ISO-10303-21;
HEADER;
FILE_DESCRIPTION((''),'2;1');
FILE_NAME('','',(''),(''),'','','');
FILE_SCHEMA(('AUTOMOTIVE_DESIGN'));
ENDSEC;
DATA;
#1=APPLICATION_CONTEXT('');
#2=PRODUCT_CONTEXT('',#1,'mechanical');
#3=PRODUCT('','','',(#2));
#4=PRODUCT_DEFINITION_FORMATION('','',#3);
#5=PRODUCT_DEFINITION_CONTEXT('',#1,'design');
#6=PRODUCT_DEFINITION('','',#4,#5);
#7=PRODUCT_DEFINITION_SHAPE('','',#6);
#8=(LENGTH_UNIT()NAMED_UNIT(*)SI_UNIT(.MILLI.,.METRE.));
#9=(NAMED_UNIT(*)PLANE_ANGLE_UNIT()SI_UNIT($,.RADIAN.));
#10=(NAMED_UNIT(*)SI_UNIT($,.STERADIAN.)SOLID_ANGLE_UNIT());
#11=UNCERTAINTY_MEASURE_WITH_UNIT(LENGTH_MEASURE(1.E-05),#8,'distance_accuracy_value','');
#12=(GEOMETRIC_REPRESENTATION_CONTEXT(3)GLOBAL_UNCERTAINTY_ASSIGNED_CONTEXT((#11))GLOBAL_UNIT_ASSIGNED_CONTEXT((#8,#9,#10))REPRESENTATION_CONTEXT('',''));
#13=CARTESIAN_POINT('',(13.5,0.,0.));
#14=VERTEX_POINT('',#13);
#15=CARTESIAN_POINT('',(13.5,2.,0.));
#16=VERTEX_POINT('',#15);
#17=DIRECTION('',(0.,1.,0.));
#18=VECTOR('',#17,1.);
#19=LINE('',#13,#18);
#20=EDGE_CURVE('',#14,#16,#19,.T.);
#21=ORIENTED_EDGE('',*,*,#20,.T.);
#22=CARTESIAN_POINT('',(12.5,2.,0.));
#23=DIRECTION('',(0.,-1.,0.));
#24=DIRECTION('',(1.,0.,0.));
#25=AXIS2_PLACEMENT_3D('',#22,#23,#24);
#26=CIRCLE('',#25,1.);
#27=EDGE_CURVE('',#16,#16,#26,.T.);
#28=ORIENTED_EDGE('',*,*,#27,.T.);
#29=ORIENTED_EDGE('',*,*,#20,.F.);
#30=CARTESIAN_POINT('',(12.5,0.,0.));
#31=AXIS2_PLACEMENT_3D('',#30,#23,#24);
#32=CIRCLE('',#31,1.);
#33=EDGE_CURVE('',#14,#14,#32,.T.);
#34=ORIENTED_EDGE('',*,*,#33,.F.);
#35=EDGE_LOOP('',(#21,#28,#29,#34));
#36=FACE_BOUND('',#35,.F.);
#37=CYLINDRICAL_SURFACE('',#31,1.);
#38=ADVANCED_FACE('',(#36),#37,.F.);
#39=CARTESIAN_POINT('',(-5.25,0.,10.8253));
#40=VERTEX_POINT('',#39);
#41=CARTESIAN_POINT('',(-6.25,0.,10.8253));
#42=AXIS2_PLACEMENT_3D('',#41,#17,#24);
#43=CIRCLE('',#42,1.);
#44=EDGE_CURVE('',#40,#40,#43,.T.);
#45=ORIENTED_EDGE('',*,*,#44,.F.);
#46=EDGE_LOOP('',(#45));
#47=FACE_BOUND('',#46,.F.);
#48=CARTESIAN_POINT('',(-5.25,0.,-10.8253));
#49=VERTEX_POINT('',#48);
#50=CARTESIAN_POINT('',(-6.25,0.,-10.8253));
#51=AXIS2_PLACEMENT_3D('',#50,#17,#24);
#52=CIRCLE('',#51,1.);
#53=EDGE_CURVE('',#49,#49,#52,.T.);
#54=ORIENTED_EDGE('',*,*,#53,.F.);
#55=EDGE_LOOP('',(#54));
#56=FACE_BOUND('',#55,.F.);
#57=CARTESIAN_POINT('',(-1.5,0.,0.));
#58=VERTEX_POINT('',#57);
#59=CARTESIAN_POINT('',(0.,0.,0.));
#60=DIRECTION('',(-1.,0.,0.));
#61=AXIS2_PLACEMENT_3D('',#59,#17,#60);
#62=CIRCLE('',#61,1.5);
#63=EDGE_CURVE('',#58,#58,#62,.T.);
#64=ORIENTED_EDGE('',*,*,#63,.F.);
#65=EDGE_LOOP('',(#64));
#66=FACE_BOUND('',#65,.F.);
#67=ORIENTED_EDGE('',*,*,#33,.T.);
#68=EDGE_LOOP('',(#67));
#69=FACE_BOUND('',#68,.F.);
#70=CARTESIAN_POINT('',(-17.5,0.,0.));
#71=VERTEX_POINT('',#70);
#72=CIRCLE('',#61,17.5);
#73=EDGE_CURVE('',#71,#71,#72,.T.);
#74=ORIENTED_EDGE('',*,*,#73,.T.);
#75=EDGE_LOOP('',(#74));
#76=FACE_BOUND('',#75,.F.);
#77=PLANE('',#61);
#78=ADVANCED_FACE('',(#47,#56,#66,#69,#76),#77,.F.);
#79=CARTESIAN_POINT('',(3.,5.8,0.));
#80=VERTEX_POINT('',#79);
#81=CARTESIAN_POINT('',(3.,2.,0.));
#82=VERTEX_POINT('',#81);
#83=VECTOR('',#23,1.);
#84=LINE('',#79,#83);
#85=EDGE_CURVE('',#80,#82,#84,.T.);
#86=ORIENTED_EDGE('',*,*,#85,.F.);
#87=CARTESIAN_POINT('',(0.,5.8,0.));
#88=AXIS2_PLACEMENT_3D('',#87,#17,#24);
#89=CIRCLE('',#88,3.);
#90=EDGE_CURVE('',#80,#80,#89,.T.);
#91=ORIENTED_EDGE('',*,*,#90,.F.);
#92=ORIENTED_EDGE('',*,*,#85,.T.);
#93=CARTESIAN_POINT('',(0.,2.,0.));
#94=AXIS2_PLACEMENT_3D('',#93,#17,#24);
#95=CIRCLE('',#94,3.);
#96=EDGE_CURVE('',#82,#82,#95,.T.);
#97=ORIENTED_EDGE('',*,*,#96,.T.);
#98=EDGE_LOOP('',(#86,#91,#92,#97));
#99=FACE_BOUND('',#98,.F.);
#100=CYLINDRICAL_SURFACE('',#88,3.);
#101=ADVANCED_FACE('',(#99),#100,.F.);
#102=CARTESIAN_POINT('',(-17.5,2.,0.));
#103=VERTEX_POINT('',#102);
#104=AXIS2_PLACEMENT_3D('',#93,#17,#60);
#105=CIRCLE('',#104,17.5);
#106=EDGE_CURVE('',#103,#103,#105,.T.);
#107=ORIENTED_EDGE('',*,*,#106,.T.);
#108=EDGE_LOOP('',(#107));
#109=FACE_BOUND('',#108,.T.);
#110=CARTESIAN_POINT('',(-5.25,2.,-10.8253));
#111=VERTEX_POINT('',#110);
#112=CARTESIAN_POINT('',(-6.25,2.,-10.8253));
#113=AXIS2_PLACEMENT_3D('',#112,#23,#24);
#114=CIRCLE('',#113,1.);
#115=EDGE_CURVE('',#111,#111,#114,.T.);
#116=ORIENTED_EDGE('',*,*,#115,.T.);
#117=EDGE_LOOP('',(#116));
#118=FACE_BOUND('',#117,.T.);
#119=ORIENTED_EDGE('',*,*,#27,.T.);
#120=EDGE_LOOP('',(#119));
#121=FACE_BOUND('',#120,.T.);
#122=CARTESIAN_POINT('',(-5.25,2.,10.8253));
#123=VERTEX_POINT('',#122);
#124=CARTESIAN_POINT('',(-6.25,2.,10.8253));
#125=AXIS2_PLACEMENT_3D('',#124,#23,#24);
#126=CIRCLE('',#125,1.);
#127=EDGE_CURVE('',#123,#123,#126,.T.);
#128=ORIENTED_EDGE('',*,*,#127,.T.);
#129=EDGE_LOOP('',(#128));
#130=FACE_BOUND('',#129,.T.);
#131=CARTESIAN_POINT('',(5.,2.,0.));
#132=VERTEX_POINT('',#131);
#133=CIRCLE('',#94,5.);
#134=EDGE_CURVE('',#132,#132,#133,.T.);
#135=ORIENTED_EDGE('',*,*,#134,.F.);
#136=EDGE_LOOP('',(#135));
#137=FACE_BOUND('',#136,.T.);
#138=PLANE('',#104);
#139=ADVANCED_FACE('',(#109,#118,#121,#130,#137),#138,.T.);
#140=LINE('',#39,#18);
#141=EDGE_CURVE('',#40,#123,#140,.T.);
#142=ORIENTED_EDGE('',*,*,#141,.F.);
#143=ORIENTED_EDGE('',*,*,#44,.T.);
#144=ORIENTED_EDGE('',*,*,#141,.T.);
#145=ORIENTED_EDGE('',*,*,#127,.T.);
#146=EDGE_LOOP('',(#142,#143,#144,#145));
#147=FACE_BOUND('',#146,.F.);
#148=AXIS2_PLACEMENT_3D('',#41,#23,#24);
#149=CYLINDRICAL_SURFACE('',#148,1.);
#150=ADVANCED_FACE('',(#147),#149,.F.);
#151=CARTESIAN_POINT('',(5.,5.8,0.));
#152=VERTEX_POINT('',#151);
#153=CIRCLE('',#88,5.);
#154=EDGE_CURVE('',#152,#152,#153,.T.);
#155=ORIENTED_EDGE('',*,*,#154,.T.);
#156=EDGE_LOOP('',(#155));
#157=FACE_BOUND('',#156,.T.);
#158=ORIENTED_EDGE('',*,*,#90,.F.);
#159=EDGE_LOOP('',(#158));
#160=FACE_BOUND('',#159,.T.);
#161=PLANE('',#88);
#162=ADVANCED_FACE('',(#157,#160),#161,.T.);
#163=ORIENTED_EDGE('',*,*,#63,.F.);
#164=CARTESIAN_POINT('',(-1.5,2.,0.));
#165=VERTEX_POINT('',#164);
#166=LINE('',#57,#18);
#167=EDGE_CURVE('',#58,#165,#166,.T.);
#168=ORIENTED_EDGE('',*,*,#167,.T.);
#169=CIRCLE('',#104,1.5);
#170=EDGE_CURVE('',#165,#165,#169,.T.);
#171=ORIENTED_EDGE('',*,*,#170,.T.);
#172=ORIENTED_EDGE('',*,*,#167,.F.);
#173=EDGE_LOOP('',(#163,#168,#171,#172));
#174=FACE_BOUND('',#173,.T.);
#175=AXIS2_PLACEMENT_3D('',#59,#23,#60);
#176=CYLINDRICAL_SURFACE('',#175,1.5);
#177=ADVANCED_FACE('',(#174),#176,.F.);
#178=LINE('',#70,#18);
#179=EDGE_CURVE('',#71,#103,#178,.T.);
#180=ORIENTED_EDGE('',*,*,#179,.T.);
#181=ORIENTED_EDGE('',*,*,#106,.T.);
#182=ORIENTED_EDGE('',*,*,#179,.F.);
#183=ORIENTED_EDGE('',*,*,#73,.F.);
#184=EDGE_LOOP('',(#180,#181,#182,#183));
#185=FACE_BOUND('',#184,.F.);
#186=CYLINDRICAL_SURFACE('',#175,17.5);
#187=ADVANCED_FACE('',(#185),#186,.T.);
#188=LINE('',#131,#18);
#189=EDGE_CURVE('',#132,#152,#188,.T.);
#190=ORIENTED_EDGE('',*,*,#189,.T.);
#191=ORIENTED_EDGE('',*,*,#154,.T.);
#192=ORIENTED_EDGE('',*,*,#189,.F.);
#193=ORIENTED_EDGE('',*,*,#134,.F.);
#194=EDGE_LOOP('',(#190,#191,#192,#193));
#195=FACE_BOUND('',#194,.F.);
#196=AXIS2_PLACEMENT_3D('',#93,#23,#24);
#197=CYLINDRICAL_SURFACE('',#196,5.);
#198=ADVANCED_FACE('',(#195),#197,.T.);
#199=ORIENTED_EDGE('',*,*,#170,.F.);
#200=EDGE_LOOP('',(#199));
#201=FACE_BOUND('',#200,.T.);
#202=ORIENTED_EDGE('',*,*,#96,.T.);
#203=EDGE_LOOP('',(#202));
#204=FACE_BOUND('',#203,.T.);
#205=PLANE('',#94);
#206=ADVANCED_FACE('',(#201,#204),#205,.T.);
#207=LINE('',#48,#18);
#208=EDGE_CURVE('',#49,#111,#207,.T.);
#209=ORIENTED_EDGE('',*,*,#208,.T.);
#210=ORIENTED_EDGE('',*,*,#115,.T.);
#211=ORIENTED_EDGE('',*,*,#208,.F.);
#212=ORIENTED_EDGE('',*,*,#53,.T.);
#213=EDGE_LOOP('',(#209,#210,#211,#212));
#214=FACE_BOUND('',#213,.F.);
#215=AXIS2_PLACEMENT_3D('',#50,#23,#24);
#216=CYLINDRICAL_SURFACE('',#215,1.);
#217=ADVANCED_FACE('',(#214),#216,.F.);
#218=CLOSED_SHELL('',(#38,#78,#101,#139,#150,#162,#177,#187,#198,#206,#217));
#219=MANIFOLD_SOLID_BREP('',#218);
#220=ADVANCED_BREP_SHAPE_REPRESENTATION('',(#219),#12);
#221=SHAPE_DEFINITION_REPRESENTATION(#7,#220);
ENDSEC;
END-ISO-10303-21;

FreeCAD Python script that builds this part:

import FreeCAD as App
import Part
import Sketcher
Q = App.Units.Quantity

doc = App.newDocument("Part")
params = doc.addObject("Spreadsheet::Sheet", "Params")
for row, (alias, value) in enumerate([
    ("sketch1_diameter", "35 mm"),
    ("sketch1_diameter2", "3 mm"),
    ("pad1_length", "2 mm"),
    ("sketch2_diameter", "10 mm"),
    ("pad2_length", "3.8 mm"),
    ("sketch3_diameter", "6 mm"),
    ("pocket1_length", "3.8 mm"),
    ("sketch4_diameter", "2 mm"),
    ("pocket2_length", "3.8 mm"),
], start=1):
    params.set(f"A{row}", alias)
    params.set(f"B{row}", "=" + value)
    params.setAlias(f"B{row}", alias)

body = doc.addObject("PartDesign::Body", "Body")

# Sketch on XZ plane
sketch1 = body.newObject("Sketcher::SketchObject", "Sketch")
sketch1.AttachmentSupport = (doc.getObject("XZ_Plane"), [""])
sketch1.MapMode = "FlatFace"
sketch1.addGeometry([
    Part.Circle(App.Vector(0, 0, 0), App.Vector(0, 0, 1), 17.5),
    Part.Circle(App.Vector(0, 0, 0), App.Vector(0, 0, 1), 1.5),
], False)
sketch1.addConstraint([
    Sketcher.Constraint("Coincident", 0, 3, -1, 1),
    Sketcher.Constraint("Coincident", 1, 3, -1, 1),
    Sketcher.Constraint("Diameter", 0, Q("35 mm")),
    Sketcher.Constraint("Diameter", 1, Q("3 mm")),
])
sketch1.setExpression("Constraints[2]", "Params.sketch1_diameter")
sketch1.setExpression("Constraints[3]", "Params.sketch1_diameter2")
pad1 = body.newObject("PartDesign::Pad", "Pad")
pad1.Profile = sketch1
pad1.setExpression("Length", "Params.pad1_length")
pad1.Reversed = True

# Sketch on XZ plane
sketch2 = body.newObject("Sketcher::SketchObject", "Sketch001")
sketch2.AttachmentSupport = (doc.getObject("XZ_Plane"), [""])
sketch2.MapMode = "FlatFace"
sketch2.AttachmentOffset = App.Placement(App.Vector(0, 0, -2), App.Rotation())
sketch2.addGeometry(Part.Circle(App.Vector(0, 0, 0), App.Vector(0, 0, 1), 5), False)
sketch2.addConstraint([
    Sketcher.Constraint("Coincident", 0, 3, -1, 1),
    Sketcher.Constraint("Diameter", 0, Q("10 mm")),
])
sketch2.setExpression("Constraints[1]", "Params.sketch2_diameter")
pad2 = body.newObject("PartDesign::Pad", "Pad001")
pad2.Profile = sketch2
pad2.setExpression("Length", "Params.pad2_length")
pad2.Reversed = True

# Sketch on XZ plane
sketch3 = body.newObject("Sketcher::SketchObject", "Sketch002")
sketch3.AttachmentSupport = (doc.getObject("XZ_Plane"), [""])
sketch3.MapMode = "FlatFace"
sketch3.AttachmentOffset = App.Placement(App.Vector(0, 0, -5.8), App.Rotation())
sketch3.addGeometry(Part.Circle(App.Vector(0, 0, 0), App.Vector(0, 0, 1), 3), False)
sketch3.addConstraint([
    Sketcher.Constraint("Coincident", 0, 3, -1, 1),
    Sketcher.Constraint("Diameter", 0, Q("6 mm")),
])
sketch3.setExpression("Constraints[1]", "Params.sketch3_diameter")
pocket1 = body.newObject("PartDesign::Pocket", "Pocket")
pocket1.Profile = sketch3
pocket1.setExpression("Length", "Params.pocket1_length")
pocket1.Reversed = True

# Sketch on XZ plane
sketch4 = body.newObject("Sketcher::SketchObject", "Sketch003")
sketch4.AttachmentSupport = (doc.getObject("XZ_Plane"), [""])
sketch4.MapMode = "FlatFace"
sketch4.addGeometry([
    Part.Circle(App.Vector(12.5, 0, 0), App.Vector(0, 0, 1), 1),
    Part.Circle(App.Vector(-6.2, 10.8, 0), App.Vector(0, 0, 1), 1),
    Part.Circle(App.Vector(-6.2, -10.8, 0), App.Vector(0, 0, 1), 1),
], False)
sketch4.addConstraint([
    Sketcher.Constraint("Equal", 0, 1),
    Sketcher.Constraint("Equal", 1, 2),
    Sketcher.Constraint("Symmetric", 1, 3, 2, 3, -1),
    Sketcher.Constraint("PointOnObject", 0, 3, -1),
    Sketcher.Constraint("Diameter", 0, Q("2 mm")),
    Sketcher.Constraint("DistanceX", -1, 1, 0, 3, Q("12.5 mm")),
    Sketcher.Constraint("DistanceX", 1, 3, -1, 1, Q("6.25 mm")),
    Sketcher.Constraint("DistanceY", -1, 1, 1, 3, Q("10.8253 mm")),
])
sketch4.setExpression("Constraints[4]", "Params.sketch4_diameter")
pocket2 = body.newObject("PartDesign::Pocket", "Pocket001")
pocket2.Profile = sketch4
pocket2.setExpression("Length", "Params.pocket2_length")

doc.recompute()
